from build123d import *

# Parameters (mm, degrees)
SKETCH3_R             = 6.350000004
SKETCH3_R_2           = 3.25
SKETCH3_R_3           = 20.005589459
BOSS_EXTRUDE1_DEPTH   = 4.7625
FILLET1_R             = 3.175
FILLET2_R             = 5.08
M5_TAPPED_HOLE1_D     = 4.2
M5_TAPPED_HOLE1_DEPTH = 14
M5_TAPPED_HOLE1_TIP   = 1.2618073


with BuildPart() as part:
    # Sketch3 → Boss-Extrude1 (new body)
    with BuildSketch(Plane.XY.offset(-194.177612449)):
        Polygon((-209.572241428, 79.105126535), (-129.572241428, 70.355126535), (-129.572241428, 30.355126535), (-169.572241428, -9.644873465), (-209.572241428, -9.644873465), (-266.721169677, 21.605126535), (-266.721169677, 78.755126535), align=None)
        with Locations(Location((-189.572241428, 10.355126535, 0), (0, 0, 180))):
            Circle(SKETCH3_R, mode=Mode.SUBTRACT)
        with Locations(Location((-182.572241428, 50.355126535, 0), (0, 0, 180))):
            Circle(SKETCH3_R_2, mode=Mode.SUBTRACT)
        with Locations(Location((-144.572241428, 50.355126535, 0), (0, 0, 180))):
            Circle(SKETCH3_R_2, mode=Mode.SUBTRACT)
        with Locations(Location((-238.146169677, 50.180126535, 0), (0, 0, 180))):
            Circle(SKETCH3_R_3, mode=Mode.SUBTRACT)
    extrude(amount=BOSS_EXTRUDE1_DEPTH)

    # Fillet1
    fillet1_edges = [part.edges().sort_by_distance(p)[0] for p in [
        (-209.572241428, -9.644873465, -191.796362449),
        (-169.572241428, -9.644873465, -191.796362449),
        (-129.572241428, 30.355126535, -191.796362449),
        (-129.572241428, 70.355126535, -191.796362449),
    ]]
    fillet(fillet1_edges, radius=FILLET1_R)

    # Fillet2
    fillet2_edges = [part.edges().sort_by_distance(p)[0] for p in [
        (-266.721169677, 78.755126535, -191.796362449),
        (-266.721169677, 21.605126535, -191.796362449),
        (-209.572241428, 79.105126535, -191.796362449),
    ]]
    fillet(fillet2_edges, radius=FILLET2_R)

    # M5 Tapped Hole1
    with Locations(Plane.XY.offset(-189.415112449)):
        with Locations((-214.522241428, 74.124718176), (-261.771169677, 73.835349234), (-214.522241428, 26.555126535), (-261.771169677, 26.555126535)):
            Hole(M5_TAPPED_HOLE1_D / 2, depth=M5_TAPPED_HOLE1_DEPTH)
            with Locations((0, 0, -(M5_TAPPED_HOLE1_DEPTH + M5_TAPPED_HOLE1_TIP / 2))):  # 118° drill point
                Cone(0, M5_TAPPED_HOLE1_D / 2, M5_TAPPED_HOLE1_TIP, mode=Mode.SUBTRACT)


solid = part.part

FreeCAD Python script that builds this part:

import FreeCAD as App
import Part
import Sketcher

V = App.Vector
Q = App.Units.Quantity


def edges_at(feature, points):
    """Names of the edges that pass closest to the given points."""
    edges = feature.Shape.Edges
    near = lambda p: min(range(len(edges)), key=lambda i: edges[i].distToShape(Part.Vertex(*p))[0])
    return sorted({f"Edge{near(p) + 1}" for p in points})

doc = App.newDocument("Part")
params = doc.addObject("Spreadsheet::Sheet", "Params")
for row, (alias, value) in enumerate([
    ("sketch1_diameter", "0.5 in"),
    ("sketch1_height", "2.25 in"),
    ("sketch1_length", "2.25 in"),
    ("pad1_length", "0.1875 in"),
    ("fillet_radius", "0.125 in"),
    ("fillet2_radius", "0.2 in"),
    ("hole_diameter", "4.2 mm"),
    ("hole_depth", "14 mm"),
], start=1):
    params.set(f"A{row}", alias)
    params.set(f"B{row}", "=" + value)
    params.setAlias(f"B{row}", alias)

body = doc.addObject("PartDesign::Body", "Body")

# Sketch on XY plane
sketch1 = doc.addObject("Sketcher::SketchObject", "Sketch")
body.addObject(sketch1)
sketch1.AttachmentSupport = (doc.XY_Plane, [""])
sketch1.MapMode = "FlatFace"
sketch1.AttachmentOffset = App.Placement(V(0, 0, -194.177612), App.Rotation())
sketch1.addGeometry(Part.LineSegment(V(-129.572241, 70.355127, 0), V(-209.572241, 79.105127, 0)), False)
sketch1.addGeometry(Part.LineSegment(V(-209.572241, 79.105127, 0), V(-266.72117, 78.755127, 0)), False)
sketch1.addGeometry(Part.LineSegment(V(-266.72117, 78.755127, 0), V(-266.72117, 21.605127, 0)), False)
sketch1.addGeometry(Part.LineSegment(V(-266.72117, 21.605127, 0), V(-209.572241, -9.644873, 0)), False)
sketch1.addGeometry(Part.LineSegment(V(-209.572241, -9.644873, 0), V(-169.572241, -9.644873, 0)), False)
sketch1.addGeometry(Part.LineSegment(V(-169.572241, -9.644873, 0), V(-129.572241, 30.355127, 0)), False)
sketch1.addGeometry(Part.LineSegment(V(-129.572241, 30.355127, 0), V(-129.572241, 70.355127, 0)), False)
sketch1.addGeometry(Part.Circle(V(-189.572241, 10.355127, 0), V(0, 0, 1), 6.35), False)
sketch1.addGeometry(Part.Circle(V(-144.572241, 50.355127, 0), V(0, 0, 1), 3.25), False)
sketch1.addGeometry(Part.Circle(V(-182.572241, 50.355127, 0), V(0, 0, 1), 3.25), False)
sketch1.addGeometry(Part.Circle(V(-238.14617, 50.180127, 0), V(0, 0, 1), 20.005589), False)
sketch1.addConstraint(Sketcher.Constraint("Coincident", 0, 2, 1, 1))
sketch1.addConstraint(Sketcher.Constraint("Coincident", 1, 2, 2, 1))
sketch1.addConstraint(Sketcher.Constraint("Coincident", 2, 2, 3, 1))
sketch1.addConstraint(Sketcher.Constraint("Coincident", 3, 2, 4, 1))
sketch1.addConstraint(Sketcher.Constraint("Coincident", 4, 2, 5, 1))
sketch1.addConstraint(Sketcher.Constraint("Coincident", 5, 2, 6, 1))
sketch1.addConstraint(Sketcher.Constraint("Coincident", 6, 2, 0, 1))
sketch1.addConstraint(Sketcher.Constraint("Vertical", 2))
sketch1.addConstraint(Sketcher.Constraint("Horizontal", 4))
sketch1.addConstraint(Sketcher.Constraint("Vertical", 6))
sketch1.addConstraint(Sketcher.Constraint("Equal", 8, 9))
sketch1.addConstraint(Sketcher.Constraint("Horizontal", 8, 3, 9, 3))
sketch1.addConstraint(Sketcher.Constraint("Vertical", 0, 2, 3, 2))
sketch1.addConstraint(Sketcher.Constraint("Equal", 4, 6))
sketch1.addConstraint(Sketcher.Constraint("Diameter", 7, Q("0.5 in")))
sketch1.addConstraint(Sketcher.Constraint("Angle", 5, Q("45 deg")))
sketch1.addConstraint(Sketcher.Constraint("DistanceY", 2, 2, 2, 1, Q("2.25 in")))
sketch1.addConstraint(Sketcher.Constraint("Distance", 1, Q("2.25 in")))
sketch1.addConstraint(Sketcher.Constraint("Diameter", 8, 6.5))
sketch1.addConstraint(Sketcher.Constraint("Diameter", 10, 40.011179))
sketch1.addConstraint(Sketcher.Constraint("DistanceX", 1, 2, 10, 3, Q("1.125 in")))
sketch1.addConstraint(Sketcher.Constraint("DistanceY", 10, 3, 1, 2, Q("1.125 in")))
sketch1.addConstraint(Sketcher.Constraint("DistanceX", 4, 1, 4, 2, 40.0))
sketch1.addConstraint(Sketcher.Constraint("DistanceX", 7, 3, 8, 3, 45.0))
sketch1.addConstraint(Sketcher.Constraint("DistanceY", 7, 3, 8, 3, 40.0))
sketch1.addConstraint(Sketcher.Constraint("DistanceX", 9, 3, 8, 3, 38.0))
sketch1.addConstraint(Sketcher.Constraint("DistanceY", 10, 3, 9, 3, 0.175))
sketch1.addConstraint(Sketcher.Constraint("DistanceX", 0, 2, 9, 3, 27.0))
sketch1.addConstraint(Sketcher.Constraint("DistanceY", 9, 3, 0, 2, 28.75))
sketch1.addConstraint(Sketcher.Constraint("DistanceY", 3, 2, 7, 3, 20.0))
sketch1.addConstraint(Sketcher.Constraint("DistanceX", 8, 3, 5, 2, 15.0))
sketch1.addConstraint(Sketcher.Constraint("DistanceX", 7, 3, -1, 1, 189.572241))
sketch1.addConstraint(Sketcher.Constraint("DistanceY", -1, 1, 7, 3, 10.355127))
sketch1.setExpression("Constraints[14]", "Params.sketch1_diameter")
sketch1.setExpression("Constraints[16]", "Params.sketch1_height")
sketch1.setExpression("Constraints[17]", "Params.sketch1_length")
pad1 = doc.addObject("PartDesign::Pad", "Pad")
body.addObject(pad1)
pad1.Profile = sketch1
pad1.setExpression("Length", "Params.pad1_length")
doc.recompute()

fillet = doc.addObject("PartDesign::Fillet", "Fillet")
body.addObject(fillet)
fillet.Base = (pad1, edges_at(pad1, [
    (-209.572, -9.645, -191.796),
    (-169.572, -9.645, -191.796),
    (-129.572, 30.355, -191.796),
    (-129.572, 70.355, -191.796),
]))
fillet.setExpression("Radius", "Params.fillet_radius")
doc.recompute()

fillet2 = doc.addObject("PartDesign::Fillet", "Fillet001")
body.addObject(fillet2)
fillet2.Base = (fillet, edges_at(fillet, [(-266.721, 78.755, -191.796), (-266.721, 21.605, -191.796), (-209.572, 79.105, -191.796)]))
fillet2.setExpression("Radius", "Params.fillet2_radius")

# Sketch on XY plane
sketch2 = doc.addObject("Sketcher::SketchObject", "Sketch001")
body.addObject(sketch2)
sketch2.AttachmentSupport = (doc.XY_Plane, [""])
sketch2.MapMode = "FlatFace"
sketch2.AttachmentOffset = App.Placement(V(0, 0, -189.415112), App.Rotation())
sketch2.addGeometry(Part.Circle(V(-214.522241, 74.124718, 0), V(0, 0, 1), 2.1), False)
sketch2.addGeometry(Part.Circle(V(-261.77117, 73.835349, 0), V(0, 0, 1), 2.1), False)
sketch2.addGeometry(Part.Circle(V(-214.522241, 26.555127, 0), V(0, 0, 1), 2.1), False)
sketch2.addGeometry(Part.Circle(V(-261.77117, 26.555127, 0), V(0, 0, 1), 2.1), False)
sketch2.addConstraint(Sketcher.Constraint("Equal", 0, 1))
sketch2.addConstraint(Sketcher.Constraint("Equal", 1, 2))
sketch2.addConstraint(Sketcher.Constraint("Equal", 2, 3))
sketch2.addConstraint(Sketcher.Constraint("Horizontal", 2, 3, 3, 3))
sketch2.addConstraint(Sketcher.Constraint("Vertical", 0, 3, 2, 3))
sketch2.addConstraint(Sketcher.Constraint("Vertical", 1, 3, 3, 3))
sketch2.addConstraint(Sketcher.Constraint("Diameter", 0, 4.2))
sketch2.addConstraint(Sketcher.Constraint("DistanceX", 0, 3, -1, 1, 214.522241))
sketch2.addConstraint(Sketcher.Constraint("DistanceY", -1, 1, 0, 3, 74.124718))
sketch2.addConstraint(Sketcher.Constraint("DistanceX", 1, 3, -1, 1, 261.77117))
sketch2.addConstraint(Sketcher.Constraint("DistanceY", -1, 1, 1, 3, 73.835349))
sketch2.addConstraint(Sketcher.Constraint("DistanceY", 2, 3, 0, 3, 47.569592))
doc.recompute()
hole = doc.addObject("PartDesign::Hole", "Hole")
body.addObject(hole)
hole.Profile = sketch2
hole.ThreadType = "None"
hole.setExpression("Diameter", "Params.hole_diameter")
hole.DepthType = "Dimension"
hole.setExpression("Depth", "Params.hole_depth")
hole.DrillPoint = "Angled"
hole.DrillPointAngle = 118

doc.recompute()
